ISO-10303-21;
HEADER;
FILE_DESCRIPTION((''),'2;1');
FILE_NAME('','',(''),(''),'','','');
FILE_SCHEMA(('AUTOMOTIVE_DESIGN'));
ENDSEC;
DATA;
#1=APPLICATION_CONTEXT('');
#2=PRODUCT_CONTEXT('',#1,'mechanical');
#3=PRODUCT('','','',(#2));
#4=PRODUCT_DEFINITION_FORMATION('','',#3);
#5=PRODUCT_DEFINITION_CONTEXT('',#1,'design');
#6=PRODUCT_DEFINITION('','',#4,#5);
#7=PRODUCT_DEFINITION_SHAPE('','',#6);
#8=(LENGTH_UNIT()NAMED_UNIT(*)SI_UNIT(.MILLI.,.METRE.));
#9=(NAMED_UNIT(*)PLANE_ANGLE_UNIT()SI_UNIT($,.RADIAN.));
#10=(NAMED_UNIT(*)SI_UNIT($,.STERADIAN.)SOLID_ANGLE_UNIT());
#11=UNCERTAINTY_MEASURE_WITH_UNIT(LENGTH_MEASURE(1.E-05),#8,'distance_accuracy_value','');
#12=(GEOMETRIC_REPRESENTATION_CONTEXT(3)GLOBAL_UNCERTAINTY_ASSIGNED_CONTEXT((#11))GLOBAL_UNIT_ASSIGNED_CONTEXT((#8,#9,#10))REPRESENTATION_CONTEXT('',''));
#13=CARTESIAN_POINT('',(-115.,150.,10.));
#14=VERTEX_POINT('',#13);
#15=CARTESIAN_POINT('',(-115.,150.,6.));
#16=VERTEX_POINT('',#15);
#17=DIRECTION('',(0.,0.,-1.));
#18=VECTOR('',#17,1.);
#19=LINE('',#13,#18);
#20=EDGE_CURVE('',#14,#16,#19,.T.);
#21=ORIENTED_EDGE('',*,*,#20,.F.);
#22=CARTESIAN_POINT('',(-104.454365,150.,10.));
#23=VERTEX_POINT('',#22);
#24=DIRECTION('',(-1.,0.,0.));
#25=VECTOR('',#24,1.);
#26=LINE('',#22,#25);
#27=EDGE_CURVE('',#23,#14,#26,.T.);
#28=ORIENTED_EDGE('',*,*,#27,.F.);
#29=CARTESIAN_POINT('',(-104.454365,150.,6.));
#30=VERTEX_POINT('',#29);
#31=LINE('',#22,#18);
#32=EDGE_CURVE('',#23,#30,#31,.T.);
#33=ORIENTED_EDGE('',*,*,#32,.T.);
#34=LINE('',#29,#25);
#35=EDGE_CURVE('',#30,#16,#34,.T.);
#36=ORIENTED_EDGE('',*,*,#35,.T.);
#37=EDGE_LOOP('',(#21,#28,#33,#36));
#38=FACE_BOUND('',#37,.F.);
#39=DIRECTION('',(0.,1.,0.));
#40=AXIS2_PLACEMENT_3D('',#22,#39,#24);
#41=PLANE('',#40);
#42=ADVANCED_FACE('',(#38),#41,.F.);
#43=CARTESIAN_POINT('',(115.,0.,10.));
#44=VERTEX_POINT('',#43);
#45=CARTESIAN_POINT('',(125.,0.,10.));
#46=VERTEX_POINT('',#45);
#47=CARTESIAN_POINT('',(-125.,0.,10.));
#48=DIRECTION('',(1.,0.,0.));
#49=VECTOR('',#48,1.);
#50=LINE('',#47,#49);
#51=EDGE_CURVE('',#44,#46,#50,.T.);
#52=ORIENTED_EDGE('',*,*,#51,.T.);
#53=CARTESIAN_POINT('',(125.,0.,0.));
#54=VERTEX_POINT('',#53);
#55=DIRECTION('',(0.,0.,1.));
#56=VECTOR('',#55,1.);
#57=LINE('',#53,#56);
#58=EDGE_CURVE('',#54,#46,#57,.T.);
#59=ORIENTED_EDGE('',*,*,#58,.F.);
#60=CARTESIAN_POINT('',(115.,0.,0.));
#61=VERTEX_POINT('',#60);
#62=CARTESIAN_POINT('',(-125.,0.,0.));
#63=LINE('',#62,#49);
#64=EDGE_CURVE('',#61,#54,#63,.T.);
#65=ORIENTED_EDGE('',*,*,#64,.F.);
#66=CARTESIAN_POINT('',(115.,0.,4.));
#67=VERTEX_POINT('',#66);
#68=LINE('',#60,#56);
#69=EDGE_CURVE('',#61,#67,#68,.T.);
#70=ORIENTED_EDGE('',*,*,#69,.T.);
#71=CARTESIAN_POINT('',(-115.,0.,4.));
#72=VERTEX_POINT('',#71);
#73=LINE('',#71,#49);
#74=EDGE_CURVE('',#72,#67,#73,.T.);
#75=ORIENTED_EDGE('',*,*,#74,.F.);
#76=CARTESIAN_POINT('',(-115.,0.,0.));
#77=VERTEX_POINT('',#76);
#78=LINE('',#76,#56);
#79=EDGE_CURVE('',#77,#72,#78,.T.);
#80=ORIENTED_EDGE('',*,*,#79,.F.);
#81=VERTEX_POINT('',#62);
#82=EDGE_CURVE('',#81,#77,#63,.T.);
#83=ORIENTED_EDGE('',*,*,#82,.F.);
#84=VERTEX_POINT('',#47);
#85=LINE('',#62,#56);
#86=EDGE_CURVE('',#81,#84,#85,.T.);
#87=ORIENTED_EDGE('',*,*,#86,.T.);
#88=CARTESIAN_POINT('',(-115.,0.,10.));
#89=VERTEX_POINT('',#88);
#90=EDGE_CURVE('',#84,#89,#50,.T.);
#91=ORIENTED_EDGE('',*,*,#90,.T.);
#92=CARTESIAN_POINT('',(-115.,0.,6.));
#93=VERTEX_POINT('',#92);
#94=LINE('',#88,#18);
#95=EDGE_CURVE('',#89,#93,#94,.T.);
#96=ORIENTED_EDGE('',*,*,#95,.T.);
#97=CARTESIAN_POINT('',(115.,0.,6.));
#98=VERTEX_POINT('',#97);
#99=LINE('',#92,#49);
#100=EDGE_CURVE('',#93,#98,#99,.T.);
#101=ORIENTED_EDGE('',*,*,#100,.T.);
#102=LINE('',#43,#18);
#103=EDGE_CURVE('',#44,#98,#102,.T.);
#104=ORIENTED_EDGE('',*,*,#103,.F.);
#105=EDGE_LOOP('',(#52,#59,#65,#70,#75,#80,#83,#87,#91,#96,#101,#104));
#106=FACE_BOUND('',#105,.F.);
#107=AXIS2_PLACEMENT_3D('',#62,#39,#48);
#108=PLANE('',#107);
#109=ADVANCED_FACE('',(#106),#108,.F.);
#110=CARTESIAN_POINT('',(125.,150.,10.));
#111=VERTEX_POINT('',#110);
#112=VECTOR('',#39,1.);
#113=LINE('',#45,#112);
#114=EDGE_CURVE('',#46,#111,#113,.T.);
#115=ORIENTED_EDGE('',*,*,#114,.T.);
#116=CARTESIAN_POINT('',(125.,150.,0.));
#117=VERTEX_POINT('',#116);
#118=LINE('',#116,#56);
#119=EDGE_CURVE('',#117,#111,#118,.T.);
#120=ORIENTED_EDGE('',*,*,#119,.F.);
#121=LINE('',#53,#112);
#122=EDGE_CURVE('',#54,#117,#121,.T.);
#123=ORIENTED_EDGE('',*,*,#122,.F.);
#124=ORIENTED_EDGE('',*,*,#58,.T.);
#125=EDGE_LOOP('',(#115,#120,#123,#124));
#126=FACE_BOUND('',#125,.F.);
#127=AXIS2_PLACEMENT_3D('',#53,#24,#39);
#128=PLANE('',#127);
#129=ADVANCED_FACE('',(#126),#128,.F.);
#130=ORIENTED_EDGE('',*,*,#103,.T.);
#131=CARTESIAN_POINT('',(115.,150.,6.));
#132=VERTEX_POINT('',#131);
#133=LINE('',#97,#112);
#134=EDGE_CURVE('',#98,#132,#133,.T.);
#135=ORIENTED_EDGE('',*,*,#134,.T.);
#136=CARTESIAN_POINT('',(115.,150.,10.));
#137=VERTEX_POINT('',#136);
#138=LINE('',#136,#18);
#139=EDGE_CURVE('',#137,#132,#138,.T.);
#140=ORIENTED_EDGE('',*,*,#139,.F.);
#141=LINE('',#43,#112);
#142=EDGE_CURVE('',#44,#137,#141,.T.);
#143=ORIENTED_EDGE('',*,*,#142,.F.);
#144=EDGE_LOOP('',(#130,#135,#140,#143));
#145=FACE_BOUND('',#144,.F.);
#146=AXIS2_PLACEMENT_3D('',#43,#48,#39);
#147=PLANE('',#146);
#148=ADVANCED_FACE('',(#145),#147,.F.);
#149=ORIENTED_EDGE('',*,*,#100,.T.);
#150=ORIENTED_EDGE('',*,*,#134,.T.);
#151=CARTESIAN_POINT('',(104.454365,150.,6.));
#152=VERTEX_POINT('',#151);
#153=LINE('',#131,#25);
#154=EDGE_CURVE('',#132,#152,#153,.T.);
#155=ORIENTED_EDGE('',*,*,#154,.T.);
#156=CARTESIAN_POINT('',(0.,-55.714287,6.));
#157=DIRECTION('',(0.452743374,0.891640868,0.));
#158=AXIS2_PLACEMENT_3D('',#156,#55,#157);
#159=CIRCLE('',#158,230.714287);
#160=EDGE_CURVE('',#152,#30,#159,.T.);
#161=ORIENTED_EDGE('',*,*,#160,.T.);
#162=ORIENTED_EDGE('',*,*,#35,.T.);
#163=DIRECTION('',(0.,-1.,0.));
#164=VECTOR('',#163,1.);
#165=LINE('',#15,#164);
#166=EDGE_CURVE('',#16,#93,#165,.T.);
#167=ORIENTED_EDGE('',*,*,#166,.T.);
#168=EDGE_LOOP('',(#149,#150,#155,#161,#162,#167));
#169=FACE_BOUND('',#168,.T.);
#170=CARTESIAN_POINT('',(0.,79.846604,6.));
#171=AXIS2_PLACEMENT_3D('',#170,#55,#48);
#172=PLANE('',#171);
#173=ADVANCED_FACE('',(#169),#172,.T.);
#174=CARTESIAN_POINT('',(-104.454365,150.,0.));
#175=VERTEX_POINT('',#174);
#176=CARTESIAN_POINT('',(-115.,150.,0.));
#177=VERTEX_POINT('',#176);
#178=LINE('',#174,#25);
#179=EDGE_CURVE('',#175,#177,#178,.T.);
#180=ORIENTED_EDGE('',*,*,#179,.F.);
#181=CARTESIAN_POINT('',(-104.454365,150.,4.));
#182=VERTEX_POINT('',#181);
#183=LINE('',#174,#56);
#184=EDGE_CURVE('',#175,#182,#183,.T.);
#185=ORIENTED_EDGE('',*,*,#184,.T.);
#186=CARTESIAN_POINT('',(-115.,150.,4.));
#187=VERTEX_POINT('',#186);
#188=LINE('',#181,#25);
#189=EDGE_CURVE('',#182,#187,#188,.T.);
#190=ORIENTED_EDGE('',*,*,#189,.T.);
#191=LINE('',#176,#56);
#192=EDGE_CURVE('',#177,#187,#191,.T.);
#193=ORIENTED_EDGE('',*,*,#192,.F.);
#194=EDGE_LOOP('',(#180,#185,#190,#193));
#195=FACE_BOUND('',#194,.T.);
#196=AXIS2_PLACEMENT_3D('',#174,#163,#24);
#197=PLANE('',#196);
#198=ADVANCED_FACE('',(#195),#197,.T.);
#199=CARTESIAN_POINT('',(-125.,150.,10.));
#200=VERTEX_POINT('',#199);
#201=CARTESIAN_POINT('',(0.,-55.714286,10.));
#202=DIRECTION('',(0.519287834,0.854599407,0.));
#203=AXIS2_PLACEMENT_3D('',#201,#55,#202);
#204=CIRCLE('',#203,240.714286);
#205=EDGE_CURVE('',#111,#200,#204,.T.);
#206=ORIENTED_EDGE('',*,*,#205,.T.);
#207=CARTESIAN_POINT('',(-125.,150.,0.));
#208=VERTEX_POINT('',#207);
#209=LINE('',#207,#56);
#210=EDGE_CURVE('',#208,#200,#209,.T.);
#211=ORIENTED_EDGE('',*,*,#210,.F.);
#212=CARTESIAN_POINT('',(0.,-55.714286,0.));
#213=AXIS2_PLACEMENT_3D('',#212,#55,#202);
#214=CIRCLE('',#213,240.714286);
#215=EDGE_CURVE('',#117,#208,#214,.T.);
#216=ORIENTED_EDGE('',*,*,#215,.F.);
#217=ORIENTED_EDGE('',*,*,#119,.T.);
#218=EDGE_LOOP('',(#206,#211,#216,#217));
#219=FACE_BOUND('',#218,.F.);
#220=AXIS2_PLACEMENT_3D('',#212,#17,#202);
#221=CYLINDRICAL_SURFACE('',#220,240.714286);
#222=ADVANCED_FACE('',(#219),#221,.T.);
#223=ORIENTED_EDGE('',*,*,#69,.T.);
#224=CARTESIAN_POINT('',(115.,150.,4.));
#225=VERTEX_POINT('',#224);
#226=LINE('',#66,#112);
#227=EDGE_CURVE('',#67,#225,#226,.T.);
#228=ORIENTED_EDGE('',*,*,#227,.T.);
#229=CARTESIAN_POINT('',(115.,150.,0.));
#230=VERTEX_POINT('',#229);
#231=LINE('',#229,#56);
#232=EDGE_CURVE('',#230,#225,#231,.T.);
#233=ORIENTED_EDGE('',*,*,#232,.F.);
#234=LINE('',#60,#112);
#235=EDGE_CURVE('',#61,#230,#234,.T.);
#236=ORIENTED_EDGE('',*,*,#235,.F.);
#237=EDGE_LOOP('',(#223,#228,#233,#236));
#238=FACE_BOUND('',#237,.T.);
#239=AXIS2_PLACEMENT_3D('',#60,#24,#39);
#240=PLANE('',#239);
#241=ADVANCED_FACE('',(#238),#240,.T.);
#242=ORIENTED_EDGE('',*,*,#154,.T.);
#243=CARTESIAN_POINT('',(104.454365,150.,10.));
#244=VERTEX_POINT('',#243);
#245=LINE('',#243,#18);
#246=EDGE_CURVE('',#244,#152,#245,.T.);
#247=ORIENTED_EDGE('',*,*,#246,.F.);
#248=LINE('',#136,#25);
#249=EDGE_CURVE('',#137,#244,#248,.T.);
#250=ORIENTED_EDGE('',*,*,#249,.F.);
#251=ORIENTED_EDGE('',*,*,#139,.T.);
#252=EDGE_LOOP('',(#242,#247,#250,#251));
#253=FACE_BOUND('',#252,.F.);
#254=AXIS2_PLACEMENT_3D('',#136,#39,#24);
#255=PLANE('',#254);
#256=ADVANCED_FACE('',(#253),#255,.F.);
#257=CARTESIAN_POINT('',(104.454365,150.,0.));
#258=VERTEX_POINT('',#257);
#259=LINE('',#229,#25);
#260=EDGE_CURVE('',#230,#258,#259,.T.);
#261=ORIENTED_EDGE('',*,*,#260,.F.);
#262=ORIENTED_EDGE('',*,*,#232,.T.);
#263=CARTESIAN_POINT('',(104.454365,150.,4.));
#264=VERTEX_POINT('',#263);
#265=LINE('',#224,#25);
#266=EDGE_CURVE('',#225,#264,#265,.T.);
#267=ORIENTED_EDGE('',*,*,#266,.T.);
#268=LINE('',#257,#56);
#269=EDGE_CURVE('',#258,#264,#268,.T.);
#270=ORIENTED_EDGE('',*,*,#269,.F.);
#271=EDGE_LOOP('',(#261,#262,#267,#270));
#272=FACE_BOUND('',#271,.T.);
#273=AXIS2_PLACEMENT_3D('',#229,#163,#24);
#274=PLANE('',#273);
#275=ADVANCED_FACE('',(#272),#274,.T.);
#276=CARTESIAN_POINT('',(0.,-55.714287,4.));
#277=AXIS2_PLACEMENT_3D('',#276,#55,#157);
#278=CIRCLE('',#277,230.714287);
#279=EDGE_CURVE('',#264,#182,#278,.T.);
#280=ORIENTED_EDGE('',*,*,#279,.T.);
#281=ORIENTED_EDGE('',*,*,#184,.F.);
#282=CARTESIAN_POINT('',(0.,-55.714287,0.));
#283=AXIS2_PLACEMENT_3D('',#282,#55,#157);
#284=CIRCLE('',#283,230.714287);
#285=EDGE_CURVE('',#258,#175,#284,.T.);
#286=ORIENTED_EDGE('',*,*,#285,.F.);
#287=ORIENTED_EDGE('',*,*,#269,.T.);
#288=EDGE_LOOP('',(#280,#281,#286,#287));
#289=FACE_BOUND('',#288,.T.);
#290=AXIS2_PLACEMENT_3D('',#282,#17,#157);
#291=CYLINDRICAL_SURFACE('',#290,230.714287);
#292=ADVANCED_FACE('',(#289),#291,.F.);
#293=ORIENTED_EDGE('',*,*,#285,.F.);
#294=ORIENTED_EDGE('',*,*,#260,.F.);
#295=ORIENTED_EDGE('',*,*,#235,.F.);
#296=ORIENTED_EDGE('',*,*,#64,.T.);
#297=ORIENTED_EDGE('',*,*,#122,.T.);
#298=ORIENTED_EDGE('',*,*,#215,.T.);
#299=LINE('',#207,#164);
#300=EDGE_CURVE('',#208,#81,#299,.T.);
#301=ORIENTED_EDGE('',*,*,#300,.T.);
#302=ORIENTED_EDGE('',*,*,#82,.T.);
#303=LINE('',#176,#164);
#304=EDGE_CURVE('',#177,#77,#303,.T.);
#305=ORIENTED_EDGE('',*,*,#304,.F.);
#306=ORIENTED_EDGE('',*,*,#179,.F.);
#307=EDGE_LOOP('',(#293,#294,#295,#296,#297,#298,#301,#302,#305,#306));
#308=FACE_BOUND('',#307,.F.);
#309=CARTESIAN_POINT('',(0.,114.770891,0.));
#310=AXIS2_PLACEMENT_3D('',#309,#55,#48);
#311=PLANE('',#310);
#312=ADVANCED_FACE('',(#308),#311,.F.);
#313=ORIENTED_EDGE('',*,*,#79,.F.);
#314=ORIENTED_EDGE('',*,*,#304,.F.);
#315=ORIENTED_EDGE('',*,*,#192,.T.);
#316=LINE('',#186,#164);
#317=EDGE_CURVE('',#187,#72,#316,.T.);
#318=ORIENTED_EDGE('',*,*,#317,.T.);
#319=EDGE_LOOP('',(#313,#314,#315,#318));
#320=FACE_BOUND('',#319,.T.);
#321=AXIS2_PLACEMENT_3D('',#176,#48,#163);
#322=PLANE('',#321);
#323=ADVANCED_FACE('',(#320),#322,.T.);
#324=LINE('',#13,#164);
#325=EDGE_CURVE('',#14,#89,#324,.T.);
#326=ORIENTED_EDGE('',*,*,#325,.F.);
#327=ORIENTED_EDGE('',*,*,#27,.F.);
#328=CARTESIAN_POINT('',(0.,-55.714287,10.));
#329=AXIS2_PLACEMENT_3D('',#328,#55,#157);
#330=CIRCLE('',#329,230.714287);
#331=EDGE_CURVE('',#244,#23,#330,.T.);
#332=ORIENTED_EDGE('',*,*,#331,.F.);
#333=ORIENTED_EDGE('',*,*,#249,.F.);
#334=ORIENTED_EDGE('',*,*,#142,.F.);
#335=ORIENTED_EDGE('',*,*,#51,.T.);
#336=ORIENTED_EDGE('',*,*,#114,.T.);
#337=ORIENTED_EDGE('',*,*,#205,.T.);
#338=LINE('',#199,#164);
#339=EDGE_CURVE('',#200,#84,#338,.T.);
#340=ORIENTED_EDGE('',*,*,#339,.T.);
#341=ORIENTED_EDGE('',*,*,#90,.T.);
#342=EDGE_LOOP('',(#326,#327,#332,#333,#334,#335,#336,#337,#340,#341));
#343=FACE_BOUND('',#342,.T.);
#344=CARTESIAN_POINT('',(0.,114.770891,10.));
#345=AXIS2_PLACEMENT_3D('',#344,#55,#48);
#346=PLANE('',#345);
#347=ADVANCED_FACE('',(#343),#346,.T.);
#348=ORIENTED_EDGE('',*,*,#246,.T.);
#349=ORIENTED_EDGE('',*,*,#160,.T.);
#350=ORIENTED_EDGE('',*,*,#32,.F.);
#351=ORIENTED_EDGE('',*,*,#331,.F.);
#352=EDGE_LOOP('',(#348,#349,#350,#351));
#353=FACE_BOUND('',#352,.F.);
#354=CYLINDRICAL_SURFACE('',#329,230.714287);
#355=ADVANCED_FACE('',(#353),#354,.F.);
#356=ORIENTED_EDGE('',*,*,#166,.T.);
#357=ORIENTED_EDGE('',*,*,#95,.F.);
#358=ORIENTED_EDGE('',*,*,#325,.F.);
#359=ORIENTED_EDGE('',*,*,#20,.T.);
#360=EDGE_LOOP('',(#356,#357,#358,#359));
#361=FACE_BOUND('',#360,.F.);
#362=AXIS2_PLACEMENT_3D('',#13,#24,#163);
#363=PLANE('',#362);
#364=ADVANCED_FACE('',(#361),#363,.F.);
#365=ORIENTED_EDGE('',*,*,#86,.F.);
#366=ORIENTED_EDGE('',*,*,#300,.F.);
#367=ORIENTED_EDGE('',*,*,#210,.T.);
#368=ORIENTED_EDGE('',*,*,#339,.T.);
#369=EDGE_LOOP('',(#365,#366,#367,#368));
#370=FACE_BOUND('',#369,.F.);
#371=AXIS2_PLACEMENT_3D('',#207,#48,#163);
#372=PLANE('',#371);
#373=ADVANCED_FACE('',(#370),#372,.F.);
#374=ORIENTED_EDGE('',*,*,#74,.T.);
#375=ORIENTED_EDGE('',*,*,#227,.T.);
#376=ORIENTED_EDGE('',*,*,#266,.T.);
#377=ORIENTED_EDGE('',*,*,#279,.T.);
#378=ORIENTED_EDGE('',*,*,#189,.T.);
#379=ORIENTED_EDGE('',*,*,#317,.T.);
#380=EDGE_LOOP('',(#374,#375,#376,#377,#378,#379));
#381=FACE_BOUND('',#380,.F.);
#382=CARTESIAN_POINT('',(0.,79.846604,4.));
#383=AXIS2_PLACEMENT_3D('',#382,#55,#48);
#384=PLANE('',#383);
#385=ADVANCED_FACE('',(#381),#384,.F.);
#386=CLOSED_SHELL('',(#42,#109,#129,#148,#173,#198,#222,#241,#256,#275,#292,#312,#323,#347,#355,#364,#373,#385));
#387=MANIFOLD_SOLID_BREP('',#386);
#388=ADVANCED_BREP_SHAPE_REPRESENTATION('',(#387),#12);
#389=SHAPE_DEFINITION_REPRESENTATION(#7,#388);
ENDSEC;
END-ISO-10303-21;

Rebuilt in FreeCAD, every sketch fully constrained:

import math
import FreeCAD as App
import Part
import Sketcher
from FreeCAD import Vector
Q = App.Units.Quantity

doc = App.newDocument("Part")
body = doc.addObject("PartDesign::Body", "Body")

# Sketch on XY plane
sketch1 = body.newObject("Sketcher::SketchObject", "Sketch")
sketch1.AttachmentSupport = (doc.getObject("XY_Plane"), [""])
sketch1.MapMode = "FlatFace"
sketch1.addGeometry([
    Part.LineSegment(Vector(125, 0, 0), Vector(125, 150, 0)),
    Part.ArcOfCircle(Part.Circle(Vector(0, -56, 0), Vector(0, 0, 1), 241), math.radians(59), math.radians(121)),
    Part.LineSegment(Vector(-125, 150, 0), Vector(-125, 0, 0)),
    Part.LineSegment(Vector(-125, 0, 0), Vector(125, 0, 0)),
], False)
sketch1.addConstraint([
    Sketcher.Constraint("Coincident", 0, 2, 1, 1),
    Sketcher.Constraint("Coincident", 1, 2, 2, 1),
    Sketcher.Constraint("Coincident", 2, 2, 3, 1),
    Sketcher.Constraint("Coincident", 3, 2, 0, 1),
    Sketcher.Constraint("Vertical", 0),
    Sketcher.Constraint("Vertical", 2),
    Sketcher.Constraint("Horizontal", 3),
    Sketcher.Constraint("Symmetric", 2, 2, 3, 2, -1, 1),
    Sketcher.Constraint("PointOnObject", 1, 3, -2),
    Sketcher.Constraint("DistanceX", 3, 1, 3, 2, Q("250 mm")),
    Sketcher.Constraint("DistanceY", 0, 1, 0, 2, Q("150 mm")),
    Sketcher.Constraint("Radius", 1, Q("240.714286 mm")),
])
pad1 = body.newObject("PartDesign::Pad", "Pad")
pad1.Profile = sketch1
pad1.Length = 10

# Sketch on XY plane
sketch2 = body.newObject("Sketcher::SketchObject", "Sketch001")
sketch2.AttachmentSupport = (doc.getObject("XY_Plane"), [""])
sketch2.MapMode = "FlatFace"
sketch2.AttachmentOffset = App.Placement(Vector(0, 0, 10), App.Rotation())
sketch2.addGeometry([
    Part.LineSegment(Vector(-115, 150, 0), Vector(-115, 0, 0)),  # 0
    Part.LineSegment(Vector(-115, 0, 0), Vector(115, 0, 0)),  # 1
    Part.LineSegment(Vector(115, 0, 0), Vector(115, 150, 0)),  # 2
    Part.LineSegment(Vector(115, 150, 0), Vector(104, 150, 0)),  # 3
    Part.ArcOfCircle(Part.Circle(Vector(0, -56, 0), Vector(0, 0, 1), 231), math.radians(63), math.radians(117)),  # 4
    Part.LineSegment(Vector(-104, 150, 0), Vector(-115, 150, 0)),  # 5
], False)
sketch2.addConstraint([
    Sketcher.Constraint("Coincident", 0, 2, 1, 1),
    Sketcher.Constraint("Coincident", 1, 2, 2, 1),
    Sketcher.Constraint("Coincident", 2, 2, 3, 1),
    Sketcher.Constraint("Coincident", 3, 2, 4, 1),
    Sketcher.Constraint("Coincident", 4, 2, 5, 1),
    Sketcher.Constraint("Coincident", 5, 2, 0, 1),
    Sketcher.Constraint("Vertical", 0),
    Sketcher.Constraint("Horizontal", 1),
    Sketcher.Constraint("Vertical", 2),
    Sketcher.Constraint("Horizontal", 3),
    Sketcher.Constraint("Horizontal", 5),
    Sketcher.Constraint("Symmetric", 0, 2, 1, 2, -1, 1),
    Sketcher.Constraint("Symmetric", 3, 2, 4, 2, -2),
    Sketcher.Constraint("DistanceX", 1, 1, 1, 2, Q("230 mm")),
    Sketcher.Constraint("DistanceY", 0, 2, 0, 1, Q("150 mm")),
    Sketcher.Constraint("Radius", 4, Q("230.714287 mm")),
    Sketcher.Constraint("DistanceX", 3, 2, 3, 1, Q("10.545635 mm")),
])
pocket1 = body.newObject("PartDesign::Pocket", "Pocket")
pocket1.Profile = sketch2
pocket1.Length = 4

# Sketch on XY plane
sketch3 = body.newObject("Sketcher::SketchObject", "Sketch002")
sketch3.AttachmentSupport = (doc.getObject("XY_Plane"), [""])
sketch3.MapMode = "FlatFace"
sketch3.addGeometry([
    Part.LineSegment(Vector(-115, 0, 0), Vector(115, 0, 0)),  # 0
    Part.LineSegment(Vector(115, 0, 0), Vector(115, 150, 0)),  # 1
    Part.LineSegment(Vector(115, 150, 0), Vector(104, 150, 0)),  # 2
    Part.ArcOfCircle(Part.Circle(Vector(0, -56, 0), Vector(0, 0, 1), 231), math.radians(63), math.radians(117)),  # 3
    Part.LineSegment(Vector(-104, 150, 0), Vector(-115, 150, 0)),  # 4
    Part.LineSegment(Vector(-115, 150, 0), Vector(-115, 0, 0)),  # 5
], False)
sketch3.addConstraint([
    Sketcher.Constraint("Coincident", 0, 2, 1, 1),
    Sketcher.Constraint("Coincident", 1, 2, 2, 1),
    Sketcher.Constraint("Coincident", 2, 2, 3, 1),
    Sketcher.Constraint("Coincident", 3, 2, 4, 1),
    Sketcher.Constraint("Coincident", 4, 2, 5, 1),
    Sketcher.Constraint("Coincident", 5, 2, 0, 1),
    Sketcher.Constraint("Horizontal", 0),
    Sketcher.Constraint("Vertical", 1),
    Sketcher.Constraint("Horizontal", 2),
    Sketcher.Constraint("Horizontal", 4),
    Sketcher.Constraint("Vertical", 5),
    Sketcher.Constraint("Symmetric", 0, 2, 5, 2, -1, 1),
    Sketcher.Constraint("Symmetric", 2, 2, 3, 2, -2),
    Sketcher.Constraint("DistanceX", 0, 1, 0, 2, Q("230 mm")),
    Sketcher.Constraint("DistanceY", 1, 1, 1, 2, Q("150 mm")),
    Sketcher.Constraint("Radius", 3, Q("230.714287 mm")),
    Sketcher.Constraint("DistanceX", 2, 2, 2, 1, Q("10.545635 mm")),
])
pocket2 = body.newObject("PartDesign::Pocket", "Pocket001")
pocket2.Profile = sketch3
pocket2.Length = 4
pocket2.Reversed = True

doc.recompute()
